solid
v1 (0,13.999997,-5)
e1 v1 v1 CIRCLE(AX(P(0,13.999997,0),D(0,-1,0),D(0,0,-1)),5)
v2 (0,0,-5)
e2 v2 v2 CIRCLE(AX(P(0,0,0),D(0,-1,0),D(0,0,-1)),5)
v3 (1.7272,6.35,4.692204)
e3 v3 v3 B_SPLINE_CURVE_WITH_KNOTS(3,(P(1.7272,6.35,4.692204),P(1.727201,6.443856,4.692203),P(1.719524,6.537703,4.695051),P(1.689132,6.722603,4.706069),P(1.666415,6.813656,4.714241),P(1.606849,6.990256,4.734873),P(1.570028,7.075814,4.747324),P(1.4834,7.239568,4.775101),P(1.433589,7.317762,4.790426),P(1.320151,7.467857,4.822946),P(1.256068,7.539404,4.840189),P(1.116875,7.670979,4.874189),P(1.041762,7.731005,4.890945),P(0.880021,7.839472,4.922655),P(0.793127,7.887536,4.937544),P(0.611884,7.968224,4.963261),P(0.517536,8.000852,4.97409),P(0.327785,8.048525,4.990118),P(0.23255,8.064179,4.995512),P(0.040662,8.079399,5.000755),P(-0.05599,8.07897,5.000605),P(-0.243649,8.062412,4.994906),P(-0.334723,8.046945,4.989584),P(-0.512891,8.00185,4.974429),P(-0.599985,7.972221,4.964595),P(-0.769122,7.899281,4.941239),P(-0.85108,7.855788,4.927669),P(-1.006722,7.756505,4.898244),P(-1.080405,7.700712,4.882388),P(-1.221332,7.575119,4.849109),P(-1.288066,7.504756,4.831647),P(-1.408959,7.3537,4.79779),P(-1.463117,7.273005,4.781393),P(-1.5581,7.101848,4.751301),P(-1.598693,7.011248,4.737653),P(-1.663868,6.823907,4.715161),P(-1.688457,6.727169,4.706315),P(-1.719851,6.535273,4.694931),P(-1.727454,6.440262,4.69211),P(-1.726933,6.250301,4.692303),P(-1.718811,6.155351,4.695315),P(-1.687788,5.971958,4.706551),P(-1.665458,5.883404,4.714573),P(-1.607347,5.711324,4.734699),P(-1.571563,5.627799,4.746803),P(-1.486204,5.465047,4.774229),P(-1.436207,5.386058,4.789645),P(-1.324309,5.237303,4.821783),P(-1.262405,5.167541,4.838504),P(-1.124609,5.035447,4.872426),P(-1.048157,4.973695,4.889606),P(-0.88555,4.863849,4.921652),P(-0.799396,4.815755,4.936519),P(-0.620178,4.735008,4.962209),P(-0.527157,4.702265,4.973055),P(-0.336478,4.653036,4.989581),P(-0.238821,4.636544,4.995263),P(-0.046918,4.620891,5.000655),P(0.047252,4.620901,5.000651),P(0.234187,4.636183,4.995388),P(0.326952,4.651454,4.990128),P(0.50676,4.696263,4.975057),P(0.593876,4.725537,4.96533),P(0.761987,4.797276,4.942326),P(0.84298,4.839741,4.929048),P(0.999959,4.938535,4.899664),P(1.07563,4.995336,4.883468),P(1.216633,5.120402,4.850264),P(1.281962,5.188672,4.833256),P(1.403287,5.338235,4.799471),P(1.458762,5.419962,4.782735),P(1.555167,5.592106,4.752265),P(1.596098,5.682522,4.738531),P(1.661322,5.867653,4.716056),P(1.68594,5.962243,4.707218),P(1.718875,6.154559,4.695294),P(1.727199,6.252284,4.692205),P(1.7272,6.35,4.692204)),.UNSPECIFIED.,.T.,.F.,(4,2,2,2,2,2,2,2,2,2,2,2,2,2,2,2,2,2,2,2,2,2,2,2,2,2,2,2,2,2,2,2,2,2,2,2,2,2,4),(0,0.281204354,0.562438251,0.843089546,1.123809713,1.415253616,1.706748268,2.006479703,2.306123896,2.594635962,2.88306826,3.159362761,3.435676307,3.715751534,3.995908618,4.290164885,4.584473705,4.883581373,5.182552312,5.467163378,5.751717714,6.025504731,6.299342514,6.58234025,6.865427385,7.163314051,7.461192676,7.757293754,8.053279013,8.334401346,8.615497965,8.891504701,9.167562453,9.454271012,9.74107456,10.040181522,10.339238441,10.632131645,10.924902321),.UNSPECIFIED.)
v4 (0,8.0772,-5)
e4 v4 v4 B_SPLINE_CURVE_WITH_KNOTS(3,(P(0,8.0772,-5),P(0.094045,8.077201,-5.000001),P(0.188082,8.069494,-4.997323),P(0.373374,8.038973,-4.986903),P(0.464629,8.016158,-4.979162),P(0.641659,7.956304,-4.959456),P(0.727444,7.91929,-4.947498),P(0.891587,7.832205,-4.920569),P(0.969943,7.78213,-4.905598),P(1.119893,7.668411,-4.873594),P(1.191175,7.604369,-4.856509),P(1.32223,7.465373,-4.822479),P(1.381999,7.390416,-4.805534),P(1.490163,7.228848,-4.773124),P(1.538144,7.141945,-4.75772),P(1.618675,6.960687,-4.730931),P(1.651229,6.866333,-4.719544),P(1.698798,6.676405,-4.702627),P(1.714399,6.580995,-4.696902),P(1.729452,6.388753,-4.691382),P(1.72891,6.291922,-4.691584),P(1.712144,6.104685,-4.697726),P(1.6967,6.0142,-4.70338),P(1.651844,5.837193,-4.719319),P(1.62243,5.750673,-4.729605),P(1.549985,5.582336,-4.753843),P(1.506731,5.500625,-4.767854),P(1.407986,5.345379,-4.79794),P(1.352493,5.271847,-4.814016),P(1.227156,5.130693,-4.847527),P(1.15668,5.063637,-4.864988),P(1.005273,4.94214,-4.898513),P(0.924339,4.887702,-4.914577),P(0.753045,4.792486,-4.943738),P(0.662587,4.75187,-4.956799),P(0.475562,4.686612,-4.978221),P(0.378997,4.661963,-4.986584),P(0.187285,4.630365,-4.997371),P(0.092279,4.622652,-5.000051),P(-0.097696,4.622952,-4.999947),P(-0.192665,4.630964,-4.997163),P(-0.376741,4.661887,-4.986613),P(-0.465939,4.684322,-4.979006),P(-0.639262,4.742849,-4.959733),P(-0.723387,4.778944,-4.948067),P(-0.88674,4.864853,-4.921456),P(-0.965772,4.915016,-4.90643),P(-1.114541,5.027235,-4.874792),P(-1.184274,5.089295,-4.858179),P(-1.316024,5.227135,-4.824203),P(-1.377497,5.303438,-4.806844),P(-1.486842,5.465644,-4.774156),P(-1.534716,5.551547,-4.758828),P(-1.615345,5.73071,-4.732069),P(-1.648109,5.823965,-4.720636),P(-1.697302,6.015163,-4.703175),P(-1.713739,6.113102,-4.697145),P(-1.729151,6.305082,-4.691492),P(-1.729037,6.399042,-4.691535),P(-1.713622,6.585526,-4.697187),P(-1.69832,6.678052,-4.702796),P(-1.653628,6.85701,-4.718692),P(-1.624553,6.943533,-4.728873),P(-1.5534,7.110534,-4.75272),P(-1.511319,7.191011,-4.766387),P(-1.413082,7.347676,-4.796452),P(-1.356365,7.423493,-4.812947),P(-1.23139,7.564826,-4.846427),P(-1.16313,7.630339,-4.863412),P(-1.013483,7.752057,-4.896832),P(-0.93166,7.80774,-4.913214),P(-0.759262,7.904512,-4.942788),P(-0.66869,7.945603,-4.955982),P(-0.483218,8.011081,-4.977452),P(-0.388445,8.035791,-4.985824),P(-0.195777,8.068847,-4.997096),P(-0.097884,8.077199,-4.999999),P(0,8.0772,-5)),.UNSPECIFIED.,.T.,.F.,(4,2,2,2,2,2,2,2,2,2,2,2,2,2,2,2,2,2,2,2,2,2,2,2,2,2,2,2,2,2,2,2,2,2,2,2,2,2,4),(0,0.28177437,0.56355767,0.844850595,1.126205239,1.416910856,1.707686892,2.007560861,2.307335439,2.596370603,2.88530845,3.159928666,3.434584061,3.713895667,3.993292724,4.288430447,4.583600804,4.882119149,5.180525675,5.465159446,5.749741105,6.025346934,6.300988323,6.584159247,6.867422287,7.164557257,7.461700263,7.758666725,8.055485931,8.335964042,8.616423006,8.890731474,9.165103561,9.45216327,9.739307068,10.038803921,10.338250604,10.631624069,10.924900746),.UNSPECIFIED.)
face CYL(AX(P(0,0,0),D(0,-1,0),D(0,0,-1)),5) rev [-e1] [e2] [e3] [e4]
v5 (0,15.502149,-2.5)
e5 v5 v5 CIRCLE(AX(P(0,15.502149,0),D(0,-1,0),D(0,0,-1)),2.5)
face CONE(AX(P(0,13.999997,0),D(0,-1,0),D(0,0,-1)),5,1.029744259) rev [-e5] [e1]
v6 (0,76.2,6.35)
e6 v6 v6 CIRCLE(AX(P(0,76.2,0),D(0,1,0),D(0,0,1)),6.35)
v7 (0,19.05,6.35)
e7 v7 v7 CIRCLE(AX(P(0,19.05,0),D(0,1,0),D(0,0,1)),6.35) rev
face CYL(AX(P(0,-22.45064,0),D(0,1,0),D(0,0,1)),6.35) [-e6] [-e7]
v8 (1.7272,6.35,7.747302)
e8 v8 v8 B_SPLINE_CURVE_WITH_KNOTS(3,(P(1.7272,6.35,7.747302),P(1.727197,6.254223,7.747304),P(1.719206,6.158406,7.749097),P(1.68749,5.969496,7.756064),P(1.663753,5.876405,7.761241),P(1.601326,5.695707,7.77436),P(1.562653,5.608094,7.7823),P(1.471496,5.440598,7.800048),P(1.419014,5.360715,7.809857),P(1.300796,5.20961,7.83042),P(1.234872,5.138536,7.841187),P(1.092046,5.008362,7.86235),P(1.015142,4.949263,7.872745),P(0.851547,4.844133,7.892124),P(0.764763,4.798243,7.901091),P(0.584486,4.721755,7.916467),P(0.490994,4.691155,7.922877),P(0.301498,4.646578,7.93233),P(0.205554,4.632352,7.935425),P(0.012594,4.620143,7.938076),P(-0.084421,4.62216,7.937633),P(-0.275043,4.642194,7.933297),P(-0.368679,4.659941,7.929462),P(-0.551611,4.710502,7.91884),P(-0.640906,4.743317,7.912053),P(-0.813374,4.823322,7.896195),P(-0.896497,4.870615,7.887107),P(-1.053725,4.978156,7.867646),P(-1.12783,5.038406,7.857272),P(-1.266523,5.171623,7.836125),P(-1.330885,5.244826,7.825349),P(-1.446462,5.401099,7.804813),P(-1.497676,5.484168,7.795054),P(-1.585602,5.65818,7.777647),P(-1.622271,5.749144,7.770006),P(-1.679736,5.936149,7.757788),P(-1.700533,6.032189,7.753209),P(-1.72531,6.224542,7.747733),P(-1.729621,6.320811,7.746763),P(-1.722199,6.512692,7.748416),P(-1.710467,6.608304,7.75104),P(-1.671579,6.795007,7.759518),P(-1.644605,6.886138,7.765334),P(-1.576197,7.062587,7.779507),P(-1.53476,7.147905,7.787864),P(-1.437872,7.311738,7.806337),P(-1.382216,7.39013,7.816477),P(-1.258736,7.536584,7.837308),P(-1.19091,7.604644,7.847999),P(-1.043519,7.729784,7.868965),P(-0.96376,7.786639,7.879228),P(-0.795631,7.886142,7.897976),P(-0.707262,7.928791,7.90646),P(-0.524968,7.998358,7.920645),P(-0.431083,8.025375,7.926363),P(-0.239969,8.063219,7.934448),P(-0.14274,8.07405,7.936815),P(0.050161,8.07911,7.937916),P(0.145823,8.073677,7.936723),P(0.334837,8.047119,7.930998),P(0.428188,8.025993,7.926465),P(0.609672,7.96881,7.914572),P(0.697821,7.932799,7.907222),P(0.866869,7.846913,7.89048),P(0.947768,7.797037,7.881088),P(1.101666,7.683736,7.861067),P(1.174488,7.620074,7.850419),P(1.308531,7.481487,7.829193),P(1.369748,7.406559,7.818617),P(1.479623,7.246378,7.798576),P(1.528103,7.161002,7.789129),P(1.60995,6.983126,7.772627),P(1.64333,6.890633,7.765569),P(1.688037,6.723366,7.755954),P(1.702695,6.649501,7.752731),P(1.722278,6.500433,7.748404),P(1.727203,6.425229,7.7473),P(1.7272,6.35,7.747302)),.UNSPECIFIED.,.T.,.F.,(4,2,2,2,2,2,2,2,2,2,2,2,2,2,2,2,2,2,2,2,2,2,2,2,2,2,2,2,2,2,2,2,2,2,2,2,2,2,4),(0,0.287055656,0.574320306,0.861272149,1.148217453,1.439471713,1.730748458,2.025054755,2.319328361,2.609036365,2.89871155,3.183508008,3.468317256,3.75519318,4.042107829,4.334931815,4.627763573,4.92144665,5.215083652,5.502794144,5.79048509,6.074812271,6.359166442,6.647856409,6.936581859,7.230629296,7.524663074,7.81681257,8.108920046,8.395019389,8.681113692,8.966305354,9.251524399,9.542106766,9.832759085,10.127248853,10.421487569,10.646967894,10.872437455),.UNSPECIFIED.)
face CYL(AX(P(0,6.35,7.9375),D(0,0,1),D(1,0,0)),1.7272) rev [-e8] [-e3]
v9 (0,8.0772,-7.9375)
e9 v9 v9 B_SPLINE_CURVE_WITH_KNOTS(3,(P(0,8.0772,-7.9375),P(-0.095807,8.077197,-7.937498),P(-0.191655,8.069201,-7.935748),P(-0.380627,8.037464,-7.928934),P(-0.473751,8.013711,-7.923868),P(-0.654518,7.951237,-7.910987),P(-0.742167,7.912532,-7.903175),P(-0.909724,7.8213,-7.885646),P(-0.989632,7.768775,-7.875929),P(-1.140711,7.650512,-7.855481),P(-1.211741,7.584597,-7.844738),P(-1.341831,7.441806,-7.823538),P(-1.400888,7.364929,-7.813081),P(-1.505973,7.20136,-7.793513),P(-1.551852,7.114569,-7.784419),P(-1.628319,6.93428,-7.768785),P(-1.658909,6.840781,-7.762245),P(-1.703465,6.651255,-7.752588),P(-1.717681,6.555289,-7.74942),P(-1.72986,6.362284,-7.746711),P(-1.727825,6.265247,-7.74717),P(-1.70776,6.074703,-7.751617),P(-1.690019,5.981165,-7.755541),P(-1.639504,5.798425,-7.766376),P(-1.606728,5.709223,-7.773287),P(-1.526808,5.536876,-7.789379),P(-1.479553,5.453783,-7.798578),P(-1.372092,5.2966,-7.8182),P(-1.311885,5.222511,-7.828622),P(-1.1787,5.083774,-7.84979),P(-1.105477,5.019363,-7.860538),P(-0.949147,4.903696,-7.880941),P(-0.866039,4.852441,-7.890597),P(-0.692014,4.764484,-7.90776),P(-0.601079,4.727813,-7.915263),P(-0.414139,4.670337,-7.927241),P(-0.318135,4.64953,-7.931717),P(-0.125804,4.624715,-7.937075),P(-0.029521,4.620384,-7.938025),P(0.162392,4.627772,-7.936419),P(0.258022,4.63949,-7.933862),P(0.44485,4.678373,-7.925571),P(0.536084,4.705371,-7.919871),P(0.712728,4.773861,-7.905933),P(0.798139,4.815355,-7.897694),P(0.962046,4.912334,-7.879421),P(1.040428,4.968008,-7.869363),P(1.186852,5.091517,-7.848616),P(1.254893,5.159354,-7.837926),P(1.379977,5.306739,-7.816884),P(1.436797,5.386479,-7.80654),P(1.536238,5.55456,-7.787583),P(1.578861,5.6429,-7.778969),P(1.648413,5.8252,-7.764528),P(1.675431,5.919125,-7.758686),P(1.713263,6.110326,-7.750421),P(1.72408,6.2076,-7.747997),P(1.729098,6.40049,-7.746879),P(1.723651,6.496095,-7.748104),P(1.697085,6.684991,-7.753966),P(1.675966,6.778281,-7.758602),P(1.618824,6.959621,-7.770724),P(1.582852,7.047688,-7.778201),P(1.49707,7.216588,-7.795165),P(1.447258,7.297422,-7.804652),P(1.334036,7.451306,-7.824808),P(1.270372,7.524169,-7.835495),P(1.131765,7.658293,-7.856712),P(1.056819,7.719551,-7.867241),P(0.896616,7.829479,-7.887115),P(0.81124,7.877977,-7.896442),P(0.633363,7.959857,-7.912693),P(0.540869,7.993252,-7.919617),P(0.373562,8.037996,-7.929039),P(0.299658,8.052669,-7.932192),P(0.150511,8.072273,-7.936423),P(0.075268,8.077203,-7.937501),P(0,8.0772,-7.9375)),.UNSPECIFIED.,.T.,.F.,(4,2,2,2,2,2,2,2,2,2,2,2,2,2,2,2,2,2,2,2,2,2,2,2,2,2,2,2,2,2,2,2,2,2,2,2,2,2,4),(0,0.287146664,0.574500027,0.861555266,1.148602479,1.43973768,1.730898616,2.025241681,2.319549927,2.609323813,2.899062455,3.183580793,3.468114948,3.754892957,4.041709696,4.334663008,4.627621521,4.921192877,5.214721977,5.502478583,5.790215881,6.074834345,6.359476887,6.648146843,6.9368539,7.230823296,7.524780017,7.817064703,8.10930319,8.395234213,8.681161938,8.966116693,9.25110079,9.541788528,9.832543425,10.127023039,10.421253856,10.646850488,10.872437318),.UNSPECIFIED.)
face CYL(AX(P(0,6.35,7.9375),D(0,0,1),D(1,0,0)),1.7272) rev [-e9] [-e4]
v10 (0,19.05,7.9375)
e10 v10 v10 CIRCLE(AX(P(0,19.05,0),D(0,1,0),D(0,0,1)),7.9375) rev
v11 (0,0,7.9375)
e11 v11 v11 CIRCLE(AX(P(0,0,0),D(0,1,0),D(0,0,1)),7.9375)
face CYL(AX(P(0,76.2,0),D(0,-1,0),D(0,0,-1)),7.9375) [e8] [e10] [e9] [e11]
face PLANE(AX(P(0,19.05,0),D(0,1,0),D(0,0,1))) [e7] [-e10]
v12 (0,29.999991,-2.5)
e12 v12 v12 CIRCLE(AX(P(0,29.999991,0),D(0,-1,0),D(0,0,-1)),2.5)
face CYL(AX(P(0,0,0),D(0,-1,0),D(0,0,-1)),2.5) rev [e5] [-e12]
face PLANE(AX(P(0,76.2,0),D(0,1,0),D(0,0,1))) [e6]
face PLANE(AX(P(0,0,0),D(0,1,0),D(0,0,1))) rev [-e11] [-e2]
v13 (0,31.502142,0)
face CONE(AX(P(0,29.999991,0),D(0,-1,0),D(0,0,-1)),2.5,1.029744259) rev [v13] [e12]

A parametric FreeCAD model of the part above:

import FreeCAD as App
import Part
import Sketcher
Q = App.Units.Quantity

doc = App.newDocument("Part")
params = doc.addObject("Spreadsheet::Sheet", "Params")
for row, (alias, value) in enumerate([
    ("sketch1_diameter", "0.625 in"),
    ("pad1_length", "3 in"),
    ("hole_diameter", "5 mm"),
    ("hole_depth", "29.999991 mm"),
    ("hole2_diameter", "10 mm"),
    ("hole2_depth", "13.999997 mm"),
    ("sketch4_diameter", "0.136 in"),
    ("hole3_diameter", "0.136 in"),
    ("sketch5_diameter", "0.5 in"),
    ("sketch5_diameter2", "0.625 in"),
    ("pocket1_length", "2.25 in"),
], start=1):
    params.set(f"A{row}", alias)
    params.set(f"B{row}", "=" + value)
    params.setAlias(f"B{row}", alias)

body = doc.addObject("PartDesign::Body", "Body")

# Sketch on XZ plane
sketch1 = doc.addObject("Sketcher::SketchObject", "Sketch")
body.addObject(sketch1)
sketch1.AttachmentSupport = (doc.XZ_Plane, [""])
sketch1.MapMode = "FlatFace"
sketch1.addGeometry(Part.Circle(App.Vector(0, 0, 0), App.Vector(0, 0, 1), 7.9375), False)
sketch1.addConstraint([
    Sketcher.Constraint("Coincident", 0, 3, -1, 1),
    Sketcher.Constraint("Diameter", 0, Q("0.625 in")),
])
sketch1.setExpression("Constraints[1]", "Params.sketch1_diameter")
pad1 = doc.addObject("PartDesign::Pad", "Pad")
body.addObject(pad1)
pad1.Profile = sketch1
pad1.setExpression("Length", "Params.pad1_length")
pad1.Reversed = True

# Sketch on XZ plane
sketch2 = doc.addObject("Sketcher::SketchObject", "Sketch001")
body.addObject(sketch2)
sketch2.AttachmentSupport = (doc.XZ_Plane, [""])
sketch2.MapMode = "FlatFace"
sketch2.addGeometry(Part.Circle(App.Vector(0, 0, 0), App.Vector(0, 0, 1), 2.5), False)
sketch2.addConstraint([
    Sketcher.Constraint("Coincident", 0, 3, -1, 1),
    Sketcher.Constraint("Diameter", 0, 5.0),
])
doc.recompute()
hole = doc.addObject("PartDesign::Hole", "Hole")
body.addObject(hole)
hole.Profile = sketch2
hole.ThreadType = "None"
hole.setExpression("Diameter", "Params.hole_diameter")
hole.DepthType = "Dimension"
hole.setExpression("Depth", "Params.hole_depth")
hole.DrillPoint = "Angled"
hole.DrillPointAngle = 118

# Sketch on XZ plane
sketch3 = doc.addObject("Sketcher::SketchObject", "Sketch002")
body.addObject(sketch3)
sketch3.AttachmentSupport = (doc.XZ_Plane, [""])
sketch3.MapMode = "FlatFace"
sketch3.addGeometry(Part.Circle(App.Vector(0, 0, 0), App.Vector(0, 0, 1), 5), False)
sketch3.addConstraint([
    Sketcher.Constraint("Coincident", 0, 3, -1, 1),
    Sketcher.Constraint("Diameter", 0, 10.0),
])
doc.recompute()
hole2 = doc.addObject("PartDesign::Hole", "Hole001")
body.addObject(hole2)
hole2.Profile = sketch3
hole2.ThreadType = "None"
hole2.setExpression("Diameter", "Params.hole2_diameter")
hole2.DepthType = "Dimension"
hole2.setExpression("Depth", "Params.hole2_depth")
hole2.DrillPoint = "Angled"
hole2.DrillPointAngle = 118

# Sketch on XY plane
sketch4 = doc.addObject("Sketcher::SketchObject", "Sketch003")
body.addObject(sketch4)
sketch4.AttachmentSupport = (doc.XY_Plane, [""])
sketch4.MapMode = "FlatFace"
sketch4.AttachmentOffset = App.Placement(App.Vector(0, 0, 0.3125 * 25.4), App.Rotation())
sketch4.addGeometry(Part.Circle(App.Vector(0, 6.35, 0), App.Vector(0, 0, 1), 1.7272), False)
sketch4.addConstraint([
    Sketcher.Constraint("PointOnObject", 0, 3, -2),
    Sketcher.Constraint("Diameter", 0, Q("0.136 in")),
    Sketcher.Constraint("DistanceY", -1, 1, 0, 3, Q("0.25 in")),
])
sketch4.setExpression("Constraints[1]", "Params.sketch4_diameter")
doc.recompute()
hole3 = doc.addObject("PartDesign::Hole", "Hole002")
body.addObject(hole3)
hole3.Profile = sketch4
hole3.ThreadType = "None"
hole3.setExpression("Diameter", "Params.hole3_diameter")
hole3.DepthType = "ThroughAll"

# Sketch on XZ plane
sketch5 = doc.addObject("Sketcher::SketchObject", "Sketch004")
body.addObject(sketch5)
sketch5.AttachmentSupport = (doc.XZ_Plane, [""])
sketch5.MapMode = "FlatFace"
sketch5.AttachmentOffset = App.Placement(App.Vector(0, 0, -3 * 25.4), App.Rotation())
sketch5.addGeometry([
    Part.Circle(App.Vector(0, 0, 0), App.Vector(0, 0, 1), 7.9375),
    Part.Circle(App.Vector(0, 0, 0), App.Vector(0, 0, 1), 6.35),
], False)
sketch5.addConstraint([
    Sketcher.Constraint("Coincident", 0, 3, -1, 1),
    Sketcher.Constraint("Coincident", 1, 3, -1, 1),
    Sketcher.Constraint("Diameter", 1, Q("0.5 in")),
    Sketcher.Constraint("Diameter", 0, Q("0.625 in")),
])
sketch5.setExpression("Constraints[2]", "Params.sketch5_diameter")
sketch5.setExpression("Constraints[3]", "Params.sketch5_diameter2")
pocket1 = doc.addObject("PartDesign::Pocket", "Pocket")
body.addObject(pocket1)
pocket1.Profile = sketch5
pocket1.setExpression("Length", "Params.pocket1_length")
pocket1.Reversed = True

doc.recompute()
